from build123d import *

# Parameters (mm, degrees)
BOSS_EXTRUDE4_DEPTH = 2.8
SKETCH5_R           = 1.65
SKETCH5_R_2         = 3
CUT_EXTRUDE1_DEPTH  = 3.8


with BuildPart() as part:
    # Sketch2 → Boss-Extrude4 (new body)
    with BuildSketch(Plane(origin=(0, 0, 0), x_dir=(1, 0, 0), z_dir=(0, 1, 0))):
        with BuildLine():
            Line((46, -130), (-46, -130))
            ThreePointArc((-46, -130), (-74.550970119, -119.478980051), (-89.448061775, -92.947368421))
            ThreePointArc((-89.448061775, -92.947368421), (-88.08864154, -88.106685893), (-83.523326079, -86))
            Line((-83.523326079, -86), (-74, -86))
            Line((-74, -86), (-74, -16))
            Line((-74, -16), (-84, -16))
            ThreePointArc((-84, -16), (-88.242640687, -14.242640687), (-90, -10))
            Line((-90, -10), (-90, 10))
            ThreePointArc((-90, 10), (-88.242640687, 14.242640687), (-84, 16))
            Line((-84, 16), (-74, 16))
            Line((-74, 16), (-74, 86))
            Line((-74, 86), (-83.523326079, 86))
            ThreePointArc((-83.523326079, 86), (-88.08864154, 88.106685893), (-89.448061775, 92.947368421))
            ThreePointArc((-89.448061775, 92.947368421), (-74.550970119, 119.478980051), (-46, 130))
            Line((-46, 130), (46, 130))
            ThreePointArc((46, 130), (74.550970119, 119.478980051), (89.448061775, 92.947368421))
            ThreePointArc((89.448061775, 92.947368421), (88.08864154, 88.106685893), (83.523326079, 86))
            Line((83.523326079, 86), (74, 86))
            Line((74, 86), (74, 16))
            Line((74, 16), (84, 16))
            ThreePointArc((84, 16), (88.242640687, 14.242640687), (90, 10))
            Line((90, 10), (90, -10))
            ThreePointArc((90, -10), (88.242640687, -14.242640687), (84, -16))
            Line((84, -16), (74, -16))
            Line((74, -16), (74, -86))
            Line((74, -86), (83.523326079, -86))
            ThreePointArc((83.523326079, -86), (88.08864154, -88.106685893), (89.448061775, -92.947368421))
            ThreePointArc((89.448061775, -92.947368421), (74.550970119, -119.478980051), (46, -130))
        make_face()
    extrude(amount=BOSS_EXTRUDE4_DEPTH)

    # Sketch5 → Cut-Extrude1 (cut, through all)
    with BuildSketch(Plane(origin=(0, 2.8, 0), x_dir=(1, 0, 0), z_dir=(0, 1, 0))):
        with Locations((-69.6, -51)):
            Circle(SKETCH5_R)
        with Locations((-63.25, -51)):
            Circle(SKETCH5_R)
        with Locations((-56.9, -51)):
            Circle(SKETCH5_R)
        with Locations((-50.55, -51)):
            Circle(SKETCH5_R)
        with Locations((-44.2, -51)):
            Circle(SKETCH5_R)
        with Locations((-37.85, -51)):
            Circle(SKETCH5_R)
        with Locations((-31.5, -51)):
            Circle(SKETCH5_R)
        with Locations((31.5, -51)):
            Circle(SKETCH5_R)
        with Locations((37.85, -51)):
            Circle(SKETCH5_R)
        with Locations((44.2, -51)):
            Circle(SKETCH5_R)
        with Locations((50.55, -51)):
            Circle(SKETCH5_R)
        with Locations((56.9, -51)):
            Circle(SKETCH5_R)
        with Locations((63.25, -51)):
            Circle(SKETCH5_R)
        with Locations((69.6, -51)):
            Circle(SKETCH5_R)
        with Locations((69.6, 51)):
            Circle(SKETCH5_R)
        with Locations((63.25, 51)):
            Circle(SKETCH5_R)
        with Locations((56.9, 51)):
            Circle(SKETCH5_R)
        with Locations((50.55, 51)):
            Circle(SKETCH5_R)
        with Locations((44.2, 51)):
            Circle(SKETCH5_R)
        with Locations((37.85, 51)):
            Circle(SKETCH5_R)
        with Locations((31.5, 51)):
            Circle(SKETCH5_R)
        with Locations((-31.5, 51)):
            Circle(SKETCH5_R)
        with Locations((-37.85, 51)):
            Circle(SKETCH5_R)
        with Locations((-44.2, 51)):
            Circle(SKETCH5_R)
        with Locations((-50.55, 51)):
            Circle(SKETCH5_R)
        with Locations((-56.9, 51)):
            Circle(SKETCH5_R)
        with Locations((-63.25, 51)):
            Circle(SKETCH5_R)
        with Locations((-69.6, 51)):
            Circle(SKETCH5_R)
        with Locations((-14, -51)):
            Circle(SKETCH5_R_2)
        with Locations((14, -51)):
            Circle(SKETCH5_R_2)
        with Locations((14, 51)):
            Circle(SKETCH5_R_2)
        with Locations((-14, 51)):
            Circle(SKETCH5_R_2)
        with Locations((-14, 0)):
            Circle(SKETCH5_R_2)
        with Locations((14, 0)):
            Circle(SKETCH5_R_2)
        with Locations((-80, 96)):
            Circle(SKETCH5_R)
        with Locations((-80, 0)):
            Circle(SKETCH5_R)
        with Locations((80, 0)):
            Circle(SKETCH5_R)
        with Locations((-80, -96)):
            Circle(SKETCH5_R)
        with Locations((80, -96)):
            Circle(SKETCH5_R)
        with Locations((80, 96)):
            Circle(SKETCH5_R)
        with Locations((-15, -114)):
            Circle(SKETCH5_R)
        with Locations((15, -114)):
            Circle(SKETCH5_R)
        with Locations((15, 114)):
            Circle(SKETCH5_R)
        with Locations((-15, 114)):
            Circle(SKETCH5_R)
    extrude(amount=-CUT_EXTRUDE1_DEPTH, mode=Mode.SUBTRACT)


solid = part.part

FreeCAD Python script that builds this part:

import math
import FreeCAD as App
import Part
import Sketcher

doc = App.newDocument("Part")
body = doc.addObject("PartDesign::Body", "Body")

# Sketch on XZ plane
sketch1 = doc.addObject("Sketcher::SketchObject", "Sketch")
body.addObject(sketch1)
sketch1.AttachmentSupport = (doc.XZ_Plane, [""])
sketch1.MapMode = "FlatFace"
sketch1.addGeometry(Part.LineSegment(App.Vector(-46, 130, 0), App.Vector(46, 130, 0)), False)
sketch1.addGeometry(Part.ArcOfCircle(Part.Circle(App.Vector(46, 86, 0), App.Vector(0, 0, 1), 44), math.radians(9.08472), math.radians(90)), False)
sketch1.addGeometry(Part.ArcOfCircle(Part.Circle(App.Vector(83.523326, 92, 0), App.Vector(0, 0, 1), 6), math.radians(-90), math.radians(9.08472)), False)
sketch1.addGeometry(Part.LineSegment(App.Vector(83.523326, 86, 0), App.Vector(74, 86, 0)), False)
sketch1.addGeometry(Part.LineSegment(App.Vector(74, 86, 0), App.Vector(74, 16, 0)), False)
sketch1.addGeometry(Part.LineSegment(App.Vector(74, 16, 0), App.Vector(84, 16, 0)), False)
sketch1.addGeometry(Part.ArcOfCircle(Part.Circle(App.Vector(84, 10, 0), App.Vector(0, 0, 1), 6), math.radians(0), math.radians(90)), False)
sketch1.addGeometry(Part.LineSegment(App.Vector(90, 10, 0), App.Vector(90, -10, 0)), False)
sketch1.addGeometry(Part.ArcOfCircle(Part.Circle(App.Vector(84, -10, 0), App.Vector(0, 0, 1), 6), math.radians(-90), math.radians(0)), False)
sketch1.addGeometry(Part.LineSegment(App.Vector(84, -16, 0), App.Vector(74, -16, 0)), False)
sketch1.addGeometry(Part.LineSegment(App.Vector(74, -16, 0), App.Vector(74, -86, 0)), False)
sketch1.addGeometry(Part.LineSegment(App.Vector(74, -86, 0), App.Vector(83.523326, -86, 0)), False)
sketch1.addGeometry(Part.ArcOfCircle(Part.Circle(App.Vector(83.523326, -92, 0), App.Vector(0, 0, 1), 6), math.radians(-9.08472), math.radians(90)), False)
sketch1.addGeometry(Part.ArcOfCircle(Part.Circle(App.Vector(46, -86, 0), App.Vector(0, 0, 1), 44), math.radians(-90), math.radians(-9.08472)), False)
sketch1.addGeometry(Part.LineSegment(App.Vector(46, -130, 0), App.Vector(-46, -130, 0)), False)
sketch1.addGeometry(Part.ArcOfCircle(Part.Circle(App.Vector(-46, -86, 0), App.Vector(0, 0, 1), 44), math.radians(-170.91528), math.radians(-90)), False)
sketch1.addGeometry(Part.ArcOfCircle(Part.Circle(App.Vector(-83.523326, -92, 0), App.Vector(0, 0, 1), 6), math.radians(90), math.radians(189.08472)), False)
sketch1.addGeometry(Part.LineSegment(App.Vector(-83.523326, -86, 0), App.Vector(-74, -86, 0)), False)
sketch1.addGeometry(Part.LineSegment(App.Vector(-74, -86, 0), App.Vector(-74, -16, 0)), False)
sketch1.addGeometry(Part.LineSegment(App.Vector(-74, -16, 0), App.Vector(-84, -16, 0)), False)
sketch1.addGeometry(Part.ArcOfCircle(Part.Circle(App.Vector(-84, -10, 0), App.Vector(0, 0, 1), 6), math.radians(180), math.radians(270)), False)
sketch1.addGeometry(Part.LineSegment(App.Vector(-90, -10, 0), App.Vector(-90, 10, 0)), False)
sketch1.addGeometry(Part.ArcOfCircle(Part.Circle(App.Vector(-84, 10, 0), App.Vector(0, 0, 1), 6), math.radians(90), math.radians(180)), False)
sketch1.addGeometry(Part.LineSegment(App.Vector(-84, 16, 0), App.Vector(-74, 16, 0)), False)
sketch1.addGeometry(Part.LineSegment(App.Vector(-74, 16, 0), App.Vector(-74, 86, 0)), False)
sketch1.addGeometry(Part.LineSegment(App.Vector(-74, 86, 0), App.Vector(-83.523326, 86, 0)), False)
sketch1.addGeometry(Part.ArcOfCircle(Part.Circle(App.Vector(-83.523326, 92, 0), App.Vector(0, 0, 1), 6), math.radians(170.91528), math.radians(270)), False)
sketch1.addGeometry(Part.ArcOfCircle(Part.Circle(App.Vector(-46, 86, 0), App.Vector(0, 0, 1), 44), math.radians(90), math.radians(170.91528)), False)
sketch1.addConstraint(Sketcher.Constraint("Tangent", 0, 2, 1, 2))
sketch1.addConstraint(Sketcher.Constraint("Tangent", 1, 1, 2, 2))
sketch1.addConstraint(Sketcher.Constraint("Tangent", 2, 1, 3, 1))
sketch1.addConstraint(Sketcher.Constraint("Coincident", 3, 2, 4, 1))
sketch1.addConstraint(Sketcher.Constraint("Coincident", 4, 2, 5, 1))
sketch1.addConstraint(Sketcher.Constraint("Tangent", 5, 2, 6, 2))
sketch1.addConstraint(Sketcher.Constraint("Tangent", 6, 1, 7, 1))
sketch1.addConstraint(Sketcher.Constraint("Tangent", 7, 2, 8, 2))
sketch1.addConstraint(Sketcher.Constraint("Tangent", 8, 1, 9, 1))
sketch1.addConstraint(Sketcher.Constraint("Coincident", 9, 2, 10, 1))
sketch1.addConstraint(Sketcher.Constraint("Coincident", 10, 2, 11, 1))
sketch1.addConstraint(Sketcher.Constraint("Tangent", 11, 2, 12, 2))
sketch1.addConstraint(Sketcher.Constraint("Tangent", 12, 1, 13, 2))
sketch1.addConstraint(Sketcher.Constraint("Tangent", 13, 1, 14, 1))
sketch1.addConstraint(Sketcher.Constraint("Tangent", 14, 2, 15, 2))
sketch1.addConstraint(Sketcher.Constraint("Tangent", 15, 1, 16, 2))
sketch1.addConstraint(Sketcher.Constraint("Tangent", 16, 1, 17, 1))
sketch1.addConstraint(Sketcher.Constraint("Coincident", 17, 2, 18, 1))
sketch1.addConstraint(Sketcher.Constraint("Coincident", 18, 2, 19, 1))
sketch1.addConstraint(Sketcher.Constraint("Tangent", 19, 2, 20, 2))
sketch1.addConstraint(Sketcher.Constraint("Tangent", 20, 1, 21, 1))
sketch1.addConstraint(Sketcher.Constraint("Tangent", 21, 2, 22, 2))
sketch1.addConstraint(Sketcher.Constraint("Tangent", 22, 1, 23, 1))
sketch1.addConstraint(Sketcher.Constraint("Coincident", 23, 2, 24, 1))
sketch1.addConstraint(Sketcher.Constraint("Coincident", 24, 2, 25, 1))
sketch1.addConstraint(Sketcher.Constraint("Tangent", 25, 2, 26, 2))
sketch1.addConstraint(Sketcher.Constraint("Tangent", 26, 1, 27, 2))
sketch1.addConstraint(Sketcher.Constraint("Tangent", 27, 1, 0, 1))
sketch1.addConstraint(Sketcher.Constraint("Horizontal", 0))
sketch1.addConstraint(Sketcher.Constraint("Horizontal", 3))
sketch1.addConstraint(Sketcher.Constraint("Vertical", 4))
sketch1.addConstraint(Sketcher.Constraint("Horizontal", 5))
sketch1.addConstraint(Sketcher.Constraint("Vertical", 7))
sketch1.addConstraint(Sketcher.Constraint("Horizontal", 9))
sketch1.addConstraint(Sketcher.Constraint("Vertical", 10))
sketch1.addConstraint(Sketcher.Constraint("Horizontal", 11))
sketch1.addConstraint(Sketcher.Constraint("Horizontal", 14))
sketch1.addConstraint(Sketcher.Constraint("Horizontal", 17))
sketch1.addConstraint(Sketcher.Constraint("Vertical", 18))
sketch1.addConstraint(Sketcher.Constraint("Horizontal", 19))
sketch1.addConstraint(Sketcher.Constraint("Vertical", 21))
sketch1.addConstraint(Sketcher.Constraint("Horizontal", 23))
sketch1.addConstraint(Sketcher.Constraint("Vertical", 24))
sketch1.addConstraint(Sketcher.Constraint("Horizontal", 25))
sketch1.addConstraint(Sketcher.Constraint("Equal", 2, 6))
sketch1.addConstraint(Sketcher.Constraint("Equal", 6, 8))
sketch1.addConstraint(Sketcher.Constraint("Equal", 8, 12))
sketch1.addConstraint(Sketcher.Constraint("Equal", 1, 13))
sketch1.addConstraint(Sketcher.Constraint("Equal", 13, 15))
sketch1.addConstraint(Sketcher.Constraint("Equal", 12, 16))
sketch1.addConstraint(Sketcher.Constraint("Equal", 16, 20))
sketch1.addConstraint(Sketcher.Constraint("Equal", 20, 22))
sketch1.addConstraint(Sketcher.Constraint("Equal", 22, 26))
sketch1.addConstraint(Sketcher.Constraint("Equal", 15, 27))
sketch1.addConstraint(Sketcher.Constraint("Symmetric", 1, 3, 15, 3, -1, 1))
sketch1.addConstraint(Sketcher.Constraint("Symmetric", 6, 3, 20, 3, -1, 1))
sketch1.addConstraint(Sketcher.Constraint("Symmetric", 12, 3, 26, 3, -1, 1))
sketch1.addConstraint(Sketcher.Constraint("Symmetric", 3, 2, 17, 2, -1, 1))
sketch1.addConstraint(Sketcher.Constraint("Symmetric", 9, 2, 23, 2, -1, 1))
sketch1.addConstraint(Sketcher.Constraint("Symmetric", 12, 3, 16, 3, -2))
sketch1.addConstraint(Sketcher.Constraint("Symmetric", 9, 2, 18, 2, -2))
sketch1.addConstraint(Sketcher.Constraint("Horizontal", 27, 3, 2, 1))
sketch1.addConstraint(Sketcher.Constraint("Radius", 1, 44.0))
sketch1.addConstraint(Sketcher.Constraint("Radius", 2, 6.0))
sketch1.addConstraint(Sketcher.Constraint("DistanceX", 0, 1, 0, 2, 92.0))
sketch1.addConstraint(Sketcher.Constraint("DistanceX", 5, 1, 5, 2, 10.0))
sketch1.addConstraint(Sketcher.Constraint("DistanceY", 4, 2, 4, 1, 70.0))
sketch1.addConstraint(Sketcher.Constraint("DistanceY", 7, 2, 7, 1, 20.0))
sketch1.addConstraint(Sketcher.Constraint("DistanceX", -1, 1, 6, 3, 84.0))
pad1 = doc.addObject("PartDesign::Pad", "Pad")
body.addObject(pad1)
pad1.Profile = sketch1
pad1.Length = 2.8
pad1.Reversed = True

# Sketch on XZ plane
sketch2 = doc.addObject("Sketcher::SketchObject", "Sketch001")
body.addObject(sketch2)
sketch2.AttachmentSupport = (doc.XZ_Plane, [""])
sketch2.MapMode = "FlatFace"
sketch2.AttachmentOffset = App.Placement(App.Vector(0, 0, -2.8), App.Rotation())
sketch2.addGeometry(Part.Circle(App.Vector(-69.6, 51, 0), App.Vector(0, 0, 1), 1.65), False)
sketch2.addGeometry(Part.Circle(App.Vector(-63.25, 51, 0), App.Vector(0, 0, 1), 1.65), False)
sketch2.addGeometry(Part.Circle(App.Vector(-56.9, 51, 0), App.Vector(0, 0, 1), 1.65), False)
sketch2.addGeometry(Part.Circle(App.Vector(-50.55, 51, 0), App.Vector(0, 0, 1), 1.65), False)
sketch2.addGeometry(Part.Circle(App.Vector(-44.2, 51, 0), App.Vector(0, 0, 1), 1.65), False)
sketch2.addGeometry(Part.Circle(App.Vector(-37.85, 51, 0), App.Vector(0, 0, 1), 1.65), False)
sketch2.addGeometry(Part.Circle(App.Vector(-31.5, 51, 0), App.Vector(0, 0, 1), 1.65), False)
sketch2.addGeometry(Part.Circle(App.Vector(31.5, 51, 0), App.Vector(0, 0, 1), 1.65), False)
sketch2.addGeometry(Part.Circle(App.Vector(37.85, 51, 0), App.Vector(0, 0, 1), 1.65), False)
sketch2.addGeometry(Part.Circle(App.Vector(44.2, 51, 0), App.Vector(0, 0, 1), 1.65), False)
sketch2.addGeometry(Part.Circle(App.Vector(50.55, 51, 0), App.Vector(0, 0, 1), 1.65), False)
sketch2.addGeometry(Part.Circle(App.Vector(56.9, 51, 0), App.Vector(0, 0, 1), 1.65), False)
sketch2.addGeometry(Part.Circle(App.Vector(63.25, 51, 0), App.Vector(0, 0, 1), 1.65), False)
sketch2.addGeometry(Part.Circle(App.Vector(69.6, 51, 0), App.Vector(0, 0, 1), 1.65), False)
sketch2.addGeometry(Part.Circle(App.Vector(69.6, -51, 0), App.Vector(0, 0, 1), 1.65), False)
sketch2.addGeometry(Part.Circle(App.Vector(63.25, -51, 0), App.Vector(0, 0, 1), 1.65), False)
sketch2.addGeometry(Part.Circle(App.Vector(56.9, -51, 0), App.Vector(0, 0, 1), 1.65), False)
sketch2.addGeometry(Part.Circle(App.Vector(50.55, -51, 0), App.Vector(0, 0, 1), 1.65), False)
sketch2.addGeometry(Part.Circle(App.Vector(44.2, -51, 0), App.Vector(0, 0, 1), 1.65), False)
sketch2.addGeometry(Part.Circle(App.Vector(37.85, -51, 0), App.Vector(0, 0, 1), 1.65), False)
sketch2.addGeometry(Part.Circle(App.Vector(31.5, -51, 0), App.Vector(0, 0, 1), 1.65), False)
sketch2.addGeometry(Part.Circle(App.Vector(-31.5, -51, 0), App.Vector(0, 0, 1), 1.65), False)
sketch2.addGeometry(Part.Circle(App.Vector(-37.85, -51, 0), App.Vector(0, 0, 1), 1.65), False)
sketch2.addGeometry(Part.Circle(App.Vector(-44.2, -51, 0), App.Vector(0, 0, 1), 1.65), False)
sketch2.addGeometry(Part.Circle(App.Vector(-50.55, -51, 0), App.Vector(0, 0, 1), 1.65), False)
sketch2.addGeometry(Part.Circle(App.Vector(-56.9, -51, 0), App.Vector(0, 0, 1), 1.65), False)
sketch2.addGeometry(Part.Circle(App.Vector(-63.25, -51, 0), App.Vector(0, 0, 1), 1.65), False)
sketch2.addGeometry(Part.Circle(App.Vector(-69.6, -51, 0), App.Vector(0, 0, 1), 1.65), False)
sketch2.addGeometry(Part.Circle(App.Vector(-14, 51, 0), App.Vector(0, 0, 1), 3), False)
sketch2.addGeometry(Part.Circle(App.Vector(14, 51, 0), App.Vector(0, 0, 1), 3), False)
sketch2.addGeometry(Part.Circle(App.Vector(14, -51, 0), App.Vector(0, 0, 1), 3), False)
sketch2.addGeometry(Part.Circle(App.Vector(-14, -51, 0), App.Vector(0, 0, 1), 3), False)
sketch2.addGeometry(Part.Circle(App.Vector(-14, 0, 0), App.Vector(0, 0, 1), 3), False)
sketch2.addGeometry(Part.Circle(App.Vector(14, 0, 0), App.Vector(0, 0, 1), 3), False)
sketch2.addGeometry(Part.Circle(App.Vector(-80, -96, 0), App.Vector(0, 0, 1), 1.65), False)
sketch2.addGeometry(Part.Circle(App.Vector(-80, 0, 0), App.Vector(0, 0, 1), 1.65), False)
sketch2.addGeometry(Part.Circle(App.Vector(80, 0, 0), App.Vector(0, 0, 1), 1.65), False)
sketch2.addGeometry(Part.Circle(App.Vector(-80, 96, 0), App.Vector(0, 0, 1), 1.65), False)
sketch2.addGeometry(Part.Circle(App.Vector(80, 96, 0), App.Vector(0, 0, 1), 1.65), False)
sketch2.addGeometry(Part.Circle(App.Vector(80, -96, 0), App.Vector(0, 0, 1), 1.65), False)
sketch2.addGeometry(Part.Circle(App.Vector(-15, 114, 0), App.Vector(0, 0, 1), 1.65), False)
sketch2.addGeometry(Part.Circle(App.Vector(15, 114, 0), App.Vector(0, 0, 1), 1.65), False)
sketch2.addGeometry(Part.Circle(App.Vector(15, -114, 0), App.Vector(0, 0, 1), 1.65), False)
sketch2.addGeometry(Part.Circle(App.Vector(-15, -114, 0), App.Vector(0, 0, 1), 1.65), False)
sketch2.addConstraint(Sketcher.Constraint("Equal", 0, 1))
sketch2.addConstraint(Sketcher.Constraint("Equal", 1, 2))
sketch2.addConstraint(Sketcher.Constraint("Equal", 2, 3))
sketch2.addConstraint(Sketcher.Constraint("Equal", 3, 4))
sketch2.addConstraint(Sketcher.Constraint("Equal", 4, 5))
sketch2.addConstraint(Sketcher.Constraint("Equal", 5, 6))
sketch2.addConstraint(Sketcher.Constraint("Equal", 6, 7))
sketch2.addConstraint(Sketcher.Constraint("Equal", 7, 8))
sketch2.addConstraint(Sketcher.Constraint("Equal", 8, 9))
sketch2.addConstraint(Sketcher.Constraint("Equal", 9, 10))
sketch2.addConstraint(Sketcher.Constraint("Equal", 10, 11))
sketch2.addConstraint(Sketcher.Constraint("Equal", 11, 12))
sketch2.addConstraint(Sketcher.Constraint("Equal", 12, 13))
sketch2.addConstraint(Sketcher.Constraint("Equal", 13, 14))
sketch2.addConstraint(Sketcher.Constraint("Equal", 14, 15))
sketch2.addConstraint(Sketcher.Constraint("Equal", 15, 16))
sketch2.addConstraint(Sketcher.Constraint("Equal", 16, 17))
sketch2.addConstraint(Sketcher.Constraint("Equal", 17, 18))
sketch2.addConstraint(Sketcher.Constraint("Equal", 18, 19))
sketch2.addConstraint(Sketcher.Constraint("Equal", 19, 20))
sketch2.addConstraint(Sketcher.Constraint("Equal", 20, 21))
sketch2.addConstraint(Sketcher.Constraint("Equal", 21, 22))
sketch2.addConstraint(Sketcher.Constraint("Equal", 22, 23))
sketch2.addConstraint(Sketcher.Constraint("Equal", 23, 24))
sketch2.addConstraint(Sketcher.Constraint("Equal", 24, 25))
sketch2.addConstraint(Sketcher.Constraint("Equal", 25, 26))
sketch2.addConstraint(Sketcher.Constraint("Equal", 26, 27))
sketch2.addConstraint(Sketcher.Constraint("Equal", 28, 29))
sketch2.addConstraint(Sketcher.Constraint("Equal", 29, 30))
sketch2.addConstraint(Sketcher.Constraint("Equal", 30, 31))
sketch2.addConstraint(Sketcher.Constraint("Equal", 31, 32))
sketch2.addConstraint(Sketcher.Constraint("Equal", 32, 33))
sketch2.addConstraint(Sketcher.Constraint("Equal", 27, 34))
sketch2.addConstraint(Sketcher.Constraint("Equal", 34, 35))
sketch2.addConstraint(Sketcher.Constraint("Equal", 35, 36))
sketch2.addConstraint(Sketcher.Constraint("Equal", 36, 37))
sketch2.addConstraint(Sketcher.Constraint("Equal", 37, 38))
sketch2.addConstraint(Sketcher.Constraint("Equal", 38, 39))
sketch2.addConstraint(Sketcher.Constraint("Equal", 39, 40))
sketch2.addConstraint(Sketcher.Constraint("Equal", 40, 41))
sketch2.addConstraint(Sketcher.Constraint("Equal", 41, 42))
sketch2.addConstraint(Sketcher.Constraint("Equal", 42, 43))
sketch2.addConstraint(Sketcher.Constraint("Symmetric", 0, 3, 14, 3, -1, 1))
sketch2.addConstraint(Sketcher.Constraint("Symmetric", 1, 3, 15, 3, -1, 1))
sketch2.addConstraint(Sketcher.Constraint("Symmetric", 2, 3, 16, 3, -1, 1))
sketch2.addConstraint(Sketcher.Constraint("Symmetric", 3, 3, 17, 3, -1, 1))
sketch2.addConstraint(Sketcher.Constraint("Symmetric", 4, 3, 18, 3, -1, 1))
sketch2.addConstraint(Sketcher.Constraint("Symmetric", 5, 3, 19, 3, -1, 1))
sketch2.addConstraint(Sketcher.Constraint("Symmetric", 6, 3, 20, 3, -1, 1))
sketch2.addConstraint(Sketcher.Constraint("Symmetric", 7, 3, 21, 3, -1, 1))
sketch2.addConstraint(Sketcher.Constraint("Symmetric", 8, 3, 22, 3, -1, 1))
sketch2.addConstraint(Sketcher.Constraint("Symmetric", 9, 3, 23, 3, -1, 1))
sketch2.addConstraint(Sketcher.Constraint("Symmetric", 10, 3, 24, 3, -1, 1))
sketch2.addConstraint(Sketcher.Constraint("Symmetric", 11, 3, 25, 3, -1, 1))
sketch2.addConstraint(Sketcher.Constraint("Symmetric", 12, 3, 26, 3, -1, 1))
sketch2.addConstraint(Sketcher.Constraint("Symmetric", 13, 3, 27, 3, -1, 1))
sketch2.addConstraint(Sketcher.Constraint("Symmetric", 28, 3, 30, 3, -1, 1))
sketch2.addConstraint(Sketcher.Constraint("Symmetric", 29, 3, 31, 3, -1, 1))
sketch2.addConstraint(Sketcher.Constraint("Symmetric", 32, 3, 33, 3, -1, 1))
sketch2.addConstraint(Sketcher.Constraint("Symmetric", 35, 3, 36, 3, -1, 1))
sketch2.addConstraint(Sketcher.Constraint("Symmetric", 34, 3, 38, 3, -1, 1))
sketch2.addConstraint(Sketcher.Constraint("Symmetric", 37, 3, 39, 3, -1, 1))
sketch2.addConstraint(Sketcher.Constraint("Symmetric", 40, 3, 42, 3, -1, 1))
sketch2.addConstraint(Sketcher.Constraint("Symmetric", 41, 3, 43, 3, -1, 1))
sketch2.addConstraint(Sketcher.Constraint("Symmetric", 6, 3, 7, 3, -2))
sketch2.addConstraint(Sketcher.Constraint("Symmetric", 5, 3, 8, 3, -2))
sketch2.addConstraint(Sketcher.Constraint("Symmetric", 4, 3, 9, 3, -2))
sketch2.addConstraint(Sketcher.Constraint("Symmetric", 3, 3, 10, 3, -2))
sketch2.addConstraint(Sketcher.Constraint("Symmetric", 2, 3, 11, 3, -2))
sketch2.addConstraint(Sketcher.Constraint("Symmetric", 1, 3, 12, 3, -2))
sketch2.addConstraint(Sketcher.Constraint("Symmetric", 0, 3, 13, 3, -2))
sketch2.addConstraint(Sketcher.Constraint("Symmetric", 28, 3, 29, 3, -2))
sketch2.addConstraint(Sketcher.Constraint("Symmetric", 37, 3, 38, 3, -2))
sketch2.addConstraint(Sketcher.Constraint("Symmetric", 40, 3, 41, 3, -2))
sketch2.addConstraint(Sketcher.Constraint("PointOnObject", 32, 3, -1))
sketch2.addConstraint(Sketcher.Constraint("PointOnObject", 35, 3, -1))
sketch2.addConstraint(Sketcher.Constraint("Horizontal", 0, 3, 1, 3))
sketch2.addConstraint(Sketcher.Constraint("Horizontal", 1, 3, 2, 3))
sketch2.addConstraint(Sketcher.Constraint("Horizontal", 2, 3, 3, 3))
sketch2.addConstraint(Sketcher.Constraint("Horizontal", 3, 3, 4, 3))
sketch2.addConstraint(Sketcher.Constraint("Horizontal", 4, 3, 5, 3))
sketch2.addConstraint(Sketcher.Constraint("Horizontal", 5, 3, 6, 3))
sketch2.addConstraint(Sketcher.Constraint("Horizontal", 13, 3, 28, 3))
sketch2.addConstraint(Sketcher.Constraint("Vertical", 31, 3, 32, 3))
sketch2.addConstraint(Sketcher.Constraint("Vertical", 34, 3, 35, 3))
sketch2.addConstraint(Sketcher.Constraint("Diameter", 28, 6.0))
sketch2.addConstraint(Sketcher.Constraint("Diameter", 0, 3.3))
sketch2.addConstraint(Sketcher.Constraint("DistanceY", -1, 1, 0, 3, 51.0))
sketch2.addConstraint(Sketcher.Constraint("DistanceX", 28, 3, -1, 1, 14.0))
sketch2.addConstraint(Sketcher.Constraint("DistanceX", 34, 3, -1, 1, 80.0))
sketch2.addConstraint(Sketcher.Constraint("DistanceY", 34, 3, -1, 1, 96.0))
sketch2.addConstraint(Sketcher.Constraint("DistanceX", 40, 3, -1, 1, 15.0))
sketch2.addConstraint(Sketcher.Constraint("DistanceY", -1, 1, 40, 3, 114.0))
sketch2.addConstraint(Sketcher.Constraint("DistanceX", 6, 3, 7, 3, 63.0))
sketch2.addConstraint(Sketcher.Constraint("DistanceX", 0, 3, -1, 1, 69.6))
sketch2.addConstraint(Sketcher.Constraint("DistanceX", 2, 3, -1, 1, 56.9))
sketch2.addConstraint(Sketcher.Constraint("DistanceX", 4, 3, -1, 1, 44.2))
sketch2.addConstraint(Sketcher.Constraint("DistanceX", 1, 3, 3, 3, 12.7))
sketch2.addConstraint(Sketcher.Constraint("DistanceX", 3, 3, 5, 3, 12.7))
sketch2.addConstraint(Sketcher.Constraint("DistanceX", 5, 3, 8, 3, 75.7))
pocket1 = doc.addObject("PartDesign::Pocket", "Pocket")
body.addObject(pocket1)
pocket1.Profile = sketch2
pocket1.Type = "ThroughAll"
pocket1.Reversed = True

doc.recompute()
